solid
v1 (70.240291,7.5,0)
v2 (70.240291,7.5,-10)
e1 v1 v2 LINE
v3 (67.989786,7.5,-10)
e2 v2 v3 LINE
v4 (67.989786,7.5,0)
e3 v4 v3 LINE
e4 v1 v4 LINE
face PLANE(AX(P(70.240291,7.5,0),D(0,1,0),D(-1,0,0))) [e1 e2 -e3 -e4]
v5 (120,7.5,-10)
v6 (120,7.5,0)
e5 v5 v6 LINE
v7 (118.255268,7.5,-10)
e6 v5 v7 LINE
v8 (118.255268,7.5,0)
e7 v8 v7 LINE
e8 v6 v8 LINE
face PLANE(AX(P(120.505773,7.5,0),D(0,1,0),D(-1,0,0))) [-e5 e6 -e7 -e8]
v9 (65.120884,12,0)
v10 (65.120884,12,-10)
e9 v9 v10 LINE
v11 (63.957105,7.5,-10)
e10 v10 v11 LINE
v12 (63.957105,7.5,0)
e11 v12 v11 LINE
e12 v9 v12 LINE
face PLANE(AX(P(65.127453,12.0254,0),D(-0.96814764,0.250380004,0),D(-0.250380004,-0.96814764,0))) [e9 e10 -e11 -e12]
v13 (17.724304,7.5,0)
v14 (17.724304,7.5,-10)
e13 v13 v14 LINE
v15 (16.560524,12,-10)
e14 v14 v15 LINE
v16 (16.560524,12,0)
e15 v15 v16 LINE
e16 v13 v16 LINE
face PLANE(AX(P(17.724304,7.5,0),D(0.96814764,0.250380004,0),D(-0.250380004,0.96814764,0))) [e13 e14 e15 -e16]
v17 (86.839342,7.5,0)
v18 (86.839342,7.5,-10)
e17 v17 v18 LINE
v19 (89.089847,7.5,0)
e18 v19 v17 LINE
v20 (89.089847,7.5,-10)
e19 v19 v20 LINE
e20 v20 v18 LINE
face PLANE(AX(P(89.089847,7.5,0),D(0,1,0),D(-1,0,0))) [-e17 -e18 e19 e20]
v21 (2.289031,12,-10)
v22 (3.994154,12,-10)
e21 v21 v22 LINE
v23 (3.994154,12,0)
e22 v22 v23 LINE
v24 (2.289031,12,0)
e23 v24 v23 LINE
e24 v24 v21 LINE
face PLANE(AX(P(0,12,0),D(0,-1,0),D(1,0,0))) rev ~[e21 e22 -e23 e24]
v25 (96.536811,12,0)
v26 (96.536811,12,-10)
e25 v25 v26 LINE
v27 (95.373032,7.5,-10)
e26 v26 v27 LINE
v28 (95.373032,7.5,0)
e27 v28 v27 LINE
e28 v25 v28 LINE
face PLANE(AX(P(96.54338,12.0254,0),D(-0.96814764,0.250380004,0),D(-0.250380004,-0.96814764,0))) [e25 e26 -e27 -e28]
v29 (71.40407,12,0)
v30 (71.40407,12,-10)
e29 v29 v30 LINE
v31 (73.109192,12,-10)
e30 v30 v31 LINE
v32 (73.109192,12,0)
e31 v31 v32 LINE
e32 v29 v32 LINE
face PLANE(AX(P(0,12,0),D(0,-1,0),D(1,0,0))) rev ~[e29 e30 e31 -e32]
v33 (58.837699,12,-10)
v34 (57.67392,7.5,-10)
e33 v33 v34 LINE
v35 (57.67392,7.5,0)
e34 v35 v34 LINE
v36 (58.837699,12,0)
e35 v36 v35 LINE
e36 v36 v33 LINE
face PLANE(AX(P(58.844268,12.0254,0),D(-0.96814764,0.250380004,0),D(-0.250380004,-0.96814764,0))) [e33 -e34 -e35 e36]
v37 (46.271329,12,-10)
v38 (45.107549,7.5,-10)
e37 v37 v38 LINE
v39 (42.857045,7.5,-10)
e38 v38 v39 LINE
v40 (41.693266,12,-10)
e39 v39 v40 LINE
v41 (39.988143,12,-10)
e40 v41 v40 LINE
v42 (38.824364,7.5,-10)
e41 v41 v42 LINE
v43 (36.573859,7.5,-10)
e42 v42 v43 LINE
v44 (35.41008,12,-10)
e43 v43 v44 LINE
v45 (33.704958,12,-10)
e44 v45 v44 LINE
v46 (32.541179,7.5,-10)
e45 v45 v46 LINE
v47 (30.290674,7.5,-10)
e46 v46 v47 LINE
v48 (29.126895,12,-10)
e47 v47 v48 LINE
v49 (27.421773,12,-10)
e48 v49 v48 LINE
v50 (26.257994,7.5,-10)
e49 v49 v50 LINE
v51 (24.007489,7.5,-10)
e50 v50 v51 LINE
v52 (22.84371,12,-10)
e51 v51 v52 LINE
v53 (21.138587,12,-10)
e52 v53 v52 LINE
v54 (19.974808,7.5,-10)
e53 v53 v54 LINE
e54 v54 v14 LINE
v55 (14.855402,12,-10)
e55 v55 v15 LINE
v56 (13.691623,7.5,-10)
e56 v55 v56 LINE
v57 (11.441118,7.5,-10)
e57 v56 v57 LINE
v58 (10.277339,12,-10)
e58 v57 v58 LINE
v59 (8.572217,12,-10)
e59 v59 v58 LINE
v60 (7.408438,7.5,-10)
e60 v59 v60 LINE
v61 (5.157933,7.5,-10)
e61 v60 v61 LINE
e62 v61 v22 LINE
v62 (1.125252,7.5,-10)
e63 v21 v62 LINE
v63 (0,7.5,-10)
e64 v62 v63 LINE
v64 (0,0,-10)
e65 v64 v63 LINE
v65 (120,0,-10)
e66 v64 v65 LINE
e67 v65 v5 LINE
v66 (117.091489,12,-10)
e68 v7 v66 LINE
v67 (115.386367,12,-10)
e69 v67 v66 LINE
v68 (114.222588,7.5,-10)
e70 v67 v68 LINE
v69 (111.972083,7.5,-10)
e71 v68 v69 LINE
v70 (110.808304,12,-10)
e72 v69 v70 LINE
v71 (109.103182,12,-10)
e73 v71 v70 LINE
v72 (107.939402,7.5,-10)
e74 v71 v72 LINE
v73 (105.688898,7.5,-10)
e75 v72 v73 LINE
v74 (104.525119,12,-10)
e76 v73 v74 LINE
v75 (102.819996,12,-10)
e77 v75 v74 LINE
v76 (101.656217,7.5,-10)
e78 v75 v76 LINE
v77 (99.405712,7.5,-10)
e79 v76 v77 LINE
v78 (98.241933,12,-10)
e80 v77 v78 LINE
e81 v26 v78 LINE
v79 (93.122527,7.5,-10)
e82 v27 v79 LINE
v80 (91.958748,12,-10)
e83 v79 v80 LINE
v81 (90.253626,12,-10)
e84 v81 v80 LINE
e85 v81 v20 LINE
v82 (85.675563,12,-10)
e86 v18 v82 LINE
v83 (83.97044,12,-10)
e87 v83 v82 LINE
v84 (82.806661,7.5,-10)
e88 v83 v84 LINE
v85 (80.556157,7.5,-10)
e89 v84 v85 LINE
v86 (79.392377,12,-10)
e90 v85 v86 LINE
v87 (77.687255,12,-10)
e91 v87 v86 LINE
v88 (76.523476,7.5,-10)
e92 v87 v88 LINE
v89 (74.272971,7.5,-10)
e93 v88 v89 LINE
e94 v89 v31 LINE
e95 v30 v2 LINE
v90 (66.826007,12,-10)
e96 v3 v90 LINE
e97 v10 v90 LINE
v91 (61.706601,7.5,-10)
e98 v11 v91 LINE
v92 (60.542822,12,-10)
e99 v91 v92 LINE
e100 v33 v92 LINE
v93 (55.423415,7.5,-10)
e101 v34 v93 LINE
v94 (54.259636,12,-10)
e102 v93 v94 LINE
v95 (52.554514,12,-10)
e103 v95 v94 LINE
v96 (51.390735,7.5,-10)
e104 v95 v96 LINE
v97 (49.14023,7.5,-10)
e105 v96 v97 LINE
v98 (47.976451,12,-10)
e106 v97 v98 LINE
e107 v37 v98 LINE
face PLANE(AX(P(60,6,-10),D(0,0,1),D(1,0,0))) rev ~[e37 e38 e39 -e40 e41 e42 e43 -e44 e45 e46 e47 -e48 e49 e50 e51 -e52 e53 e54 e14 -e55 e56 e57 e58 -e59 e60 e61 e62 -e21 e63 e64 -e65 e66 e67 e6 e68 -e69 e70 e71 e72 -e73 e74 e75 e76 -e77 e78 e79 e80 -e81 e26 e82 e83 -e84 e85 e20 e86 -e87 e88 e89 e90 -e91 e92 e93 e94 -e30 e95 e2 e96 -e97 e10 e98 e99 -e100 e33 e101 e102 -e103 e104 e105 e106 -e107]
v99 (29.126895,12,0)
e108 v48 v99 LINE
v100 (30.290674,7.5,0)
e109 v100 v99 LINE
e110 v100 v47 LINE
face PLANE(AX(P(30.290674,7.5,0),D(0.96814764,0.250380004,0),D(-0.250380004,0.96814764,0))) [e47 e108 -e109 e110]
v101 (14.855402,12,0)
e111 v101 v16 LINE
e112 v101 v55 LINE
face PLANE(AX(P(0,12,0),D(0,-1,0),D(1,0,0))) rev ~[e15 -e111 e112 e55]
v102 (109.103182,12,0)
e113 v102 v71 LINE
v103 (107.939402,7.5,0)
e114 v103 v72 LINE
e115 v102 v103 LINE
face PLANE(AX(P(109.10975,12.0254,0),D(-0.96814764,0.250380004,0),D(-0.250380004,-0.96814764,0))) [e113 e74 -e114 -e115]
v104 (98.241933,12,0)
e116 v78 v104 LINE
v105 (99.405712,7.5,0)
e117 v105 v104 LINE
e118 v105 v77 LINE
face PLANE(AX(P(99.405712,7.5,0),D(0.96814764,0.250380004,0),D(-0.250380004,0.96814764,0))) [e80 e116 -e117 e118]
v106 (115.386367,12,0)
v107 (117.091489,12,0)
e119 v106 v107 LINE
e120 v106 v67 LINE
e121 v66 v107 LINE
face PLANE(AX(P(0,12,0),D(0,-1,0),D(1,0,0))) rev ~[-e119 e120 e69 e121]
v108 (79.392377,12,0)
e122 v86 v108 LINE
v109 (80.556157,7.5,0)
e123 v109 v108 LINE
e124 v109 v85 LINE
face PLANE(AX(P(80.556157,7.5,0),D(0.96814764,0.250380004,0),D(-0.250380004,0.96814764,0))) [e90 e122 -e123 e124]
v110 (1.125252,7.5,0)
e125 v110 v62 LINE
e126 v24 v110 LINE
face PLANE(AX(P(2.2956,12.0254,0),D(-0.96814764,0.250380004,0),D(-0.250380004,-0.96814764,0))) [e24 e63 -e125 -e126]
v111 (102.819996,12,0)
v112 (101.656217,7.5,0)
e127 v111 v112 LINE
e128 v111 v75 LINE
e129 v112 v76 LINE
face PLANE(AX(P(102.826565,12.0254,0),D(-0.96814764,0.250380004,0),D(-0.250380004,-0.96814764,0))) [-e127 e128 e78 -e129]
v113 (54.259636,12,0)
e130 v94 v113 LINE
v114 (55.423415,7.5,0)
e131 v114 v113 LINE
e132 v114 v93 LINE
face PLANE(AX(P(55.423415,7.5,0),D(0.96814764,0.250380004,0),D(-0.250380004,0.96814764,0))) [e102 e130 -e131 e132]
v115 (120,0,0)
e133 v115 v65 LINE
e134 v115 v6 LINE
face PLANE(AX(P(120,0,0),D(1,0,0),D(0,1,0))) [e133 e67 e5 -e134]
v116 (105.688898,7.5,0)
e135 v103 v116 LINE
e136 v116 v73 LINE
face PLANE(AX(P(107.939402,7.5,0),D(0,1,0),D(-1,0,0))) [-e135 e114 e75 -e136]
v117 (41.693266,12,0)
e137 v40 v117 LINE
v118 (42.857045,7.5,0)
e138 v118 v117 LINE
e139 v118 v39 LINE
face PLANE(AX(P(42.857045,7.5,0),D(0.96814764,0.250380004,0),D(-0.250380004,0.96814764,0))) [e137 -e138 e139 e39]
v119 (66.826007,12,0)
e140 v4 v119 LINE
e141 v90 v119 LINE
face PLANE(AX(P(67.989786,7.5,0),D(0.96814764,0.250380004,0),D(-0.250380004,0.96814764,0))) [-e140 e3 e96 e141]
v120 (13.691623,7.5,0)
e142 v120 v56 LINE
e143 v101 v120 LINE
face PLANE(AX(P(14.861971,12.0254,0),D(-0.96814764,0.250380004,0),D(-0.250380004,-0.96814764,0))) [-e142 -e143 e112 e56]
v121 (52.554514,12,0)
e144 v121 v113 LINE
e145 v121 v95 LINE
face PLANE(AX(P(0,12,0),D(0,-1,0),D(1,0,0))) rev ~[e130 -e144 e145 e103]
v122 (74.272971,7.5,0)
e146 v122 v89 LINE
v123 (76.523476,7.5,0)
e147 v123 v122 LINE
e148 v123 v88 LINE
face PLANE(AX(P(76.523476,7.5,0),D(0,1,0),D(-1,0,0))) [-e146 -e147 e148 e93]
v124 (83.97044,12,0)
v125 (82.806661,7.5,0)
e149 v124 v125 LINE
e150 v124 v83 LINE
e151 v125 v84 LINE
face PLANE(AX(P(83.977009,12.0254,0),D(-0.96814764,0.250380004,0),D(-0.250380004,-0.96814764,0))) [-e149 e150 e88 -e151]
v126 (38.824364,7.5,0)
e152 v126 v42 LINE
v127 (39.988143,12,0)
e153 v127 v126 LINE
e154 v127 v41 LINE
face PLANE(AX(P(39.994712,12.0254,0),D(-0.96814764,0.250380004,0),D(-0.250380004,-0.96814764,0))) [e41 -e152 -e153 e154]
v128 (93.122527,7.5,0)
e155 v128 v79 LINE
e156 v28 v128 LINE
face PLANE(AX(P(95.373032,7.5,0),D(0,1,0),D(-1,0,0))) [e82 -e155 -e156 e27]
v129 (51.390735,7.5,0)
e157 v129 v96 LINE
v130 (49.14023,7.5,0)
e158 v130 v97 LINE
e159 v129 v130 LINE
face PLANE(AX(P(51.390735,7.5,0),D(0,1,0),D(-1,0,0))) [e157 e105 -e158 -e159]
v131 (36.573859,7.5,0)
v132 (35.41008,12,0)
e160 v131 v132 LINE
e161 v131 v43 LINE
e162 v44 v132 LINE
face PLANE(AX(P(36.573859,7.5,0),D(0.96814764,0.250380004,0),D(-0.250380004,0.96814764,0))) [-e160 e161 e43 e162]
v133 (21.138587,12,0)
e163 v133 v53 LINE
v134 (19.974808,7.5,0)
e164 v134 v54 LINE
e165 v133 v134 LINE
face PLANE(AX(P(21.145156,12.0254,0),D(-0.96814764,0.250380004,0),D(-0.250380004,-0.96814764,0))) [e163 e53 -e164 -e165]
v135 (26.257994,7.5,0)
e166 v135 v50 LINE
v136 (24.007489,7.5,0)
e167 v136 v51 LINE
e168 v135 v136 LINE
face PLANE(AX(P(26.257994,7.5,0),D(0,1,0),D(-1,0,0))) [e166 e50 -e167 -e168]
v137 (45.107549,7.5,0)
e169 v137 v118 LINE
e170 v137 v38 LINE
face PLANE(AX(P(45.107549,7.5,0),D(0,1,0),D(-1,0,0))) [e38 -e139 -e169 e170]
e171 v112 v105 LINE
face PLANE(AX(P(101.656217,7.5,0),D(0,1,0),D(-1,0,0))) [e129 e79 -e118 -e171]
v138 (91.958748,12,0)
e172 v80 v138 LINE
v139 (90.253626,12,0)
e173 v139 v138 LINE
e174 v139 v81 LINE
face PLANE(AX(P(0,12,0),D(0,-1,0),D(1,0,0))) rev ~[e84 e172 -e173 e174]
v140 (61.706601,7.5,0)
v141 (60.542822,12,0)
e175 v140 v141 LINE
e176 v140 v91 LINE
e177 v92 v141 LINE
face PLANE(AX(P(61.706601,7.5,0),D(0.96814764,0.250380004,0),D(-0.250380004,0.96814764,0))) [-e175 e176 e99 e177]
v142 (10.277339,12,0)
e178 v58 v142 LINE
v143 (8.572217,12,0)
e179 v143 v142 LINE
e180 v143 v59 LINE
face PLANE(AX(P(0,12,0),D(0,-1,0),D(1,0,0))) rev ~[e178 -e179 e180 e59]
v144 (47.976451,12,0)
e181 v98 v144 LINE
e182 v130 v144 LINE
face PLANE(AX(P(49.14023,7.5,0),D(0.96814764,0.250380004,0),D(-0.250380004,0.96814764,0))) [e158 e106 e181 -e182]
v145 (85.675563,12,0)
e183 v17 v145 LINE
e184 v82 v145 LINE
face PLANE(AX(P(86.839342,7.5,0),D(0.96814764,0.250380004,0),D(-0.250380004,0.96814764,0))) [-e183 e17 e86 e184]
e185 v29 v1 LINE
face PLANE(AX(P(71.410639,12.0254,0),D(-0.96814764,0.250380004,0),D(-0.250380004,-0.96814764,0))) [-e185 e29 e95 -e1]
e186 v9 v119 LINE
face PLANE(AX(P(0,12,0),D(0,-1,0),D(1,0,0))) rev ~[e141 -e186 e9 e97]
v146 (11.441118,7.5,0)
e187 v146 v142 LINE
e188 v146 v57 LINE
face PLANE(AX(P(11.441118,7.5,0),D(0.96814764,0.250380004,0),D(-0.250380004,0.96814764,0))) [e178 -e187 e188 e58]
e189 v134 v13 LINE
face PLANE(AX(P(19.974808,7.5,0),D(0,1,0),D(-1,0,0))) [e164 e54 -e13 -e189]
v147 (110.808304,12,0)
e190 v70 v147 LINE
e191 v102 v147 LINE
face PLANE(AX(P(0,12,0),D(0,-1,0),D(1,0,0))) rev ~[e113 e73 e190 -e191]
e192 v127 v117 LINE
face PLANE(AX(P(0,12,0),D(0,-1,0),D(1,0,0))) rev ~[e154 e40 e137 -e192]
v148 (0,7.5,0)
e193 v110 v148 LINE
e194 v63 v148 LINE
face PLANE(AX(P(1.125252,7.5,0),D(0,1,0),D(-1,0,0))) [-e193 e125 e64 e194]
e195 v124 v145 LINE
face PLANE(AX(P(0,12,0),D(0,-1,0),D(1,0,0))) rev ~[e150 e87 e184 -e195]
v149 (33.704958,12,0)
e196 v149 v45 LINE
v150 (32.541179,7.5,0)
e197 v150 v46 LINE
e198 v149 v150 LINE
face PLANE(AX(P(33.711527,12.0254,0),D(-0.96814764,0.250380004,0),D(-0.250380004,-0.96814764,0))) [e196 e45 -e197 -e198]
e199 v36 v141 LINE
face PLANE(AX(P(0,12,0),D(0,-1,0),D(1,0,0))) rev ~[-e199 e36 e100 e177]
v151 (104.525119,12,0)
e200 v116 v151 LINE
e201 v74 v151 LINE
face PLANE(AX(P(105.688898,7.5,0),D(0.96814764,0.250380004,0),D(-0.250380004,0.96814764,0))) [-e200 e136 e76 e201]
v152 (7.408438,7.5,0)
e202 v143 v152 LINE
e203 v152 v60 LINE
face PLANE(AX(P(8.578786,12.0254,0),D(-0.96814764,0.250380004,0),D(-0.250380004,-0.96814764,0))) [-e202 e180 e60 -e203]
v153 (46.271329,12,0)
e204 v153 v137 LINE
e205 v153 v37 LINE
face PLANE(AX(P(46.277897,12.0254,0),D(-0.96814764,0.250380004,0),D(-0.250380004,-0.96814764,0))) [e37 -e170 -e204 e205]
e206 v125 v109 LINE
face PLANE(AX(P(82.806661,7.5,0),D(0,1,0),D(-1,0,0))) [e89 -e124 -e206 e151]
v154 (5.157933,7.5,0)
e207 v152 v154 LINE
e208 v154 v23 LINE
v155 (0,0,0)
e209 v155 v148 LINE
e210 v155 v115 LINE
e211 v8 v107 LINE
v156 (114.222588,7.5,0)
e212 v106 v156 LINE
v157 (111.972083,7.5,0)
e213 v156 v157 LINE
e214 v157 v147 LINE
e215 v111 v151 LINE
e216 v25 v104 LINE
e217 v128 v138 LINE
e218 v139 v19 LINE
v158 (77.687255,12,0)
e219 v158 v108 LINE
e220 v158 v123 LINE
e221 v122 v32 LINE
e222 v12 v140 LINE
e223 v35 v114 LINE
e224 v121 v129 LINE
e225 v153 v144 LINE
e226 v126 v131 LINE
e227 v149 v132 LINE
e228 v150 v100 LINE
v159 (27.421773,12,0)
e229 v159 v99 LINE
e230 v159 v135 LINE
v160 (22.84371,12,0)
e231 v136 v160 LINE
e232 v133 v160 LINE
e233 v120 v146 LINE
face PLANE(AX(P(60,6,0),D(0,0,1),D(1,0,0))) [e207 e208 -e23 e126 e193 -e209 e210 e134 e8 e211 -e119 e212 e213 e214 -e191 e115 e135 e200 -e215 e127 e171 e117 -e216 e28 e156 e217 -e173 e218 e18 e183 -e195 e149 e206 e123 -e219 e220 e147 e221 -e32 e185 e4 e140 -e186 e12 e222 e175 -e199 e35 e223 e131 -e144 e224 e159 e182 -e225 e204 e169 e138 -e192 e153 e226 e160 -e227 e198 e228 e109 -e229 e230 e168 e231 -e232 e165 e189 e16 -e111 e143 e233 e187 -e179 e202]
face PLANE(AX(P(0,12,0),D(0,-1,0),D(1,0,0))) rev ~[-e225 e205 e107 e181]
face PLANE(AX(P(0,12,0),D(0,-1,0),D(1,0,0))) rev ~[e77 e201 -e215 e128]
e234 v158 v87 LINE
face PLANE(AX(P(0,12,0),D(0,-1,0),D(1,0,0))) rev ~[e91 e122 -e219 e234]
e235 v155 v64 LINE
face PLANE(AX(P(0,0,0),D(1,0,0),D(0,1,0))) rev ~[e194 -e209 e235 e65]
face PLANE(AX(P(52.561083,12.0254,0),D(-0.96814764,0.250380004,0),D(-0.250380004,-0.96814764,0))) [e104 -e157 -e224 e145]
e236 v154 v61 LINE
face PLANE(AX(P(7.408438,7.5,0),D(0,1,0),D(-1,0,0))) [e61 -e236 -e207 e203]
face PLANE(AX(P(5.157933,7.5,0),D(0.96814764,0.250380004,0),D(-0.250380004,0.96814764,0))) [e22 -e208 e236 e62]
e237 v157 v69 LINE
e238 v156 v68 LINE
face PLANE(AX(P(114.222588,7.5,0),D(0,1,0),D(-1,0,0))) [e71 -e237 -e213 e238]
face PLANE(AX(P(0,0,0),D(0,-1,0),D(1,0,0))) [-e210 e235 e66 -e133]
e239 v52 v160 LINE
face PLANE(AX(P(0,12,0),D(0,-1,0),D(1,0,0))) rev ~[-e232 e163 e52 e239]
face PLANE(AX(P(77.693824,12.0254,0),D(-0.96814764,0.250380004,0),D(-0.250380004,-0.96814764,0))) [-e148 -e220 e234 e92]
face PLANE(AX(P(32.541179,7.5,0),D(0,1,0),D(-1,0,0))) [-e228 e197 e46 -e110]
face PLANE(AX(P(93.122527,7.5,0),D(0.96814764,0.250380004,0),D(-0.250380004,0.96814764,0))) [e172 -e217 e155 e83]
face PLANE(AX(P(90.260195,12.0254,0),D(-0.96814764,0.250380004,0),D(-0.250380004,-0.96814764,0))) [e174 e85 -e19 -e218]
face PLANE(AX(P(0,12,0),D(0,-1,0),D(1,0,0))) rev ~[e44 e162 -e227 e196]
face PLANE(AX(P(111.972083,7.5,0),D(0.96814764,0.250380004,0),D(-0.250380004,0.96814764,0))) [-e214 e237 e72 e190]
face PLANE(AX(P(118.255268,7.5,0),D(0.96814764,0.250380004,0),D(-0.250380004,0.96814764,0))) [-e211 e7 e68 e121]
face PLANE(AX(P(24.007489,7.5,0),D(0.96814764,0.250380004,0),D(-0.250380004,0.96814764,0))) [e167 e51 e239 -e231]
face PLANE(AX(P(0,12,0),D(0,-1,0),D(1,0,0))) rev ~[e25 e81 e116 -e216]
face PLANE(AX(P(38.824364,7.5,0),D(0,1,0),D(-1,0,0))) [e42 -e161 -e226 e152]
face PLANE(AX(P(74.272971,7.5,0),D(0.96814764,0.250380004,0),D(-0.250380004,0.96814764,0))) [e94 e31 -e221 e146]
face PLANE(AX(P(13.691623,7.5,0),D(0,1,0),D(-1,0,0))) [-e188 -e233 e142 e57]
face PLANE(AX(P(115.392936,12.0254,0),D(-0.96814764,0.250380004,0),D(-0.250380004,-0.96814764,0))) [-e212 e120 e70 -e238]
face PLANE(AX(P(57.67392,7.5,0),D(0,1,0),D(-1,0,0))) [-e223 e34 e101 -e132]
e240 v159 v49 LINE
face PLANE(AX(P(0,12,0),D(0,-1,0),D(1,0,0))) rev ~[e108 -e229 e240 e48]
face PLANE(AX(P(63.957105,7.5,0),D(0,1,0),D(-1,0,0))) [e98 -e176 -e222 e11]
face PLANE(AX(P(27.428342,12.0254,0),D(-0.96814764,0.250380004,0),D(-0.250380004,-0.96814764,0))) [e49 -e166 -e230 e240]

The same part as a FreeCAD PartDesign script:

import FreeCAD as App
import Part
import Sketcher
from FreeCAD import Vector
Q = App.Units.Quantity


def add_polygon(sketch, points):
    """Adds a closed chain of lines whose ends are joined by coincident constraints."""
    first, n = sketch.GeometryCount, len(points)
    for a, b in zip(points, points[1:] + points[:1]):
        sketch.addGeometry(Part.LineSegment(App.Vector(*a, 0), App.Vector(*b, 0)), False)
    for i in range(n):
        sketch.addConstraint(Sketcher.Constraint("Coincident", first + i, 2, first + (i + 1) % n, 1))

doc = App.newDocument("Part")
body = doc.addObject("PartDesign::Body", "Body")

sketch1 = body.newObject("Sketcher::SketchObject", "Sketch")
sketch1.AttachmentSupport = (doc.getObject("XY_Plane"), [""])
sketch1.MapMode = "FlatFace"
add_polygon(sketch1, [(0, 12), (0, 0), (120, 0), (120, 12)])
sketch1.addConstraint([
    Sketcher.Constraint("Vertical", 0),
    Sketcher.Constraint("Horizontal", 1),
    Sketcher.Constraint("Vertical", 2),
    Sketcher.Constraint("Horizontal", 3),
    Sketcher.Constraint("Coincident", 0, 2, -1, 1),
    Sketcher.Constraint("DistanceX", 1, 1, 1, 2, Q("120 mm")),
    Sketcher.Constraint("DistanceY", 0, 2, 0, 1, Q("12 mm")),
])
pad1 = body.newObject("PartDesign::Pad", "Pad")
pad1.Profile = sketch1
pad1.Length = 10
pad1.Reversed = True

sketch2 = body.newObject("Sketcher::SketchObject", "Sketch001")
sketch2.AttachmentSupport = (doc.getObject("XY_Plane"), [""])
sketch2.MapMode = "FlatFace"
add_polygon(sketch2, [(-1.1, 7.5), (1.1, 7.5), (2.3, 12), (-2.3, 12)])
sketch2.addConstraint([
    Sketcher.Constraint("Horizontal", 0),
    Sketcher.Constraint("Horizontal", 2),
    Sketcher.Constraint("Equal", 1, 3),
    Sketcher.Constraint("Angle", 1, Q("75.5 deg")),
    Sketcher.Constraint("DistanceY", -1, 1, 0, 2, Q("7.5 mm")),
    Sketcher.Constraint("DistanceX", 2, 2, 2, 1, Q("4.591201 mm")),
    Sketcher.Constraint("DistanceX", -1, 1, 1, 2, Q("2.2956 mm")),
    Sketcher.Constraint("DistanceY", -1, 1, 1, 2, Q("12.0254 mm")),
])
pocket1 = body.newObject("PartDesign::Pocket", "Pocket")
pocket1.Profile = sketch2
pocket1.Type = "ThroughAll"
doc.recompute()

linearpattern = body.newObject("PartDesign::LinearPattern", "LinearPattern")
linearpattern.Originals = [pocket1]
linearpattern.Direction = (doc.getObject("X_Axis"), [""])
linearpattern.Mode = "offset"
linearpattern.Offset = 6.283185
linearpattern.Occurrences = 20
body.Tip = linearpattern

doc.recompute()
